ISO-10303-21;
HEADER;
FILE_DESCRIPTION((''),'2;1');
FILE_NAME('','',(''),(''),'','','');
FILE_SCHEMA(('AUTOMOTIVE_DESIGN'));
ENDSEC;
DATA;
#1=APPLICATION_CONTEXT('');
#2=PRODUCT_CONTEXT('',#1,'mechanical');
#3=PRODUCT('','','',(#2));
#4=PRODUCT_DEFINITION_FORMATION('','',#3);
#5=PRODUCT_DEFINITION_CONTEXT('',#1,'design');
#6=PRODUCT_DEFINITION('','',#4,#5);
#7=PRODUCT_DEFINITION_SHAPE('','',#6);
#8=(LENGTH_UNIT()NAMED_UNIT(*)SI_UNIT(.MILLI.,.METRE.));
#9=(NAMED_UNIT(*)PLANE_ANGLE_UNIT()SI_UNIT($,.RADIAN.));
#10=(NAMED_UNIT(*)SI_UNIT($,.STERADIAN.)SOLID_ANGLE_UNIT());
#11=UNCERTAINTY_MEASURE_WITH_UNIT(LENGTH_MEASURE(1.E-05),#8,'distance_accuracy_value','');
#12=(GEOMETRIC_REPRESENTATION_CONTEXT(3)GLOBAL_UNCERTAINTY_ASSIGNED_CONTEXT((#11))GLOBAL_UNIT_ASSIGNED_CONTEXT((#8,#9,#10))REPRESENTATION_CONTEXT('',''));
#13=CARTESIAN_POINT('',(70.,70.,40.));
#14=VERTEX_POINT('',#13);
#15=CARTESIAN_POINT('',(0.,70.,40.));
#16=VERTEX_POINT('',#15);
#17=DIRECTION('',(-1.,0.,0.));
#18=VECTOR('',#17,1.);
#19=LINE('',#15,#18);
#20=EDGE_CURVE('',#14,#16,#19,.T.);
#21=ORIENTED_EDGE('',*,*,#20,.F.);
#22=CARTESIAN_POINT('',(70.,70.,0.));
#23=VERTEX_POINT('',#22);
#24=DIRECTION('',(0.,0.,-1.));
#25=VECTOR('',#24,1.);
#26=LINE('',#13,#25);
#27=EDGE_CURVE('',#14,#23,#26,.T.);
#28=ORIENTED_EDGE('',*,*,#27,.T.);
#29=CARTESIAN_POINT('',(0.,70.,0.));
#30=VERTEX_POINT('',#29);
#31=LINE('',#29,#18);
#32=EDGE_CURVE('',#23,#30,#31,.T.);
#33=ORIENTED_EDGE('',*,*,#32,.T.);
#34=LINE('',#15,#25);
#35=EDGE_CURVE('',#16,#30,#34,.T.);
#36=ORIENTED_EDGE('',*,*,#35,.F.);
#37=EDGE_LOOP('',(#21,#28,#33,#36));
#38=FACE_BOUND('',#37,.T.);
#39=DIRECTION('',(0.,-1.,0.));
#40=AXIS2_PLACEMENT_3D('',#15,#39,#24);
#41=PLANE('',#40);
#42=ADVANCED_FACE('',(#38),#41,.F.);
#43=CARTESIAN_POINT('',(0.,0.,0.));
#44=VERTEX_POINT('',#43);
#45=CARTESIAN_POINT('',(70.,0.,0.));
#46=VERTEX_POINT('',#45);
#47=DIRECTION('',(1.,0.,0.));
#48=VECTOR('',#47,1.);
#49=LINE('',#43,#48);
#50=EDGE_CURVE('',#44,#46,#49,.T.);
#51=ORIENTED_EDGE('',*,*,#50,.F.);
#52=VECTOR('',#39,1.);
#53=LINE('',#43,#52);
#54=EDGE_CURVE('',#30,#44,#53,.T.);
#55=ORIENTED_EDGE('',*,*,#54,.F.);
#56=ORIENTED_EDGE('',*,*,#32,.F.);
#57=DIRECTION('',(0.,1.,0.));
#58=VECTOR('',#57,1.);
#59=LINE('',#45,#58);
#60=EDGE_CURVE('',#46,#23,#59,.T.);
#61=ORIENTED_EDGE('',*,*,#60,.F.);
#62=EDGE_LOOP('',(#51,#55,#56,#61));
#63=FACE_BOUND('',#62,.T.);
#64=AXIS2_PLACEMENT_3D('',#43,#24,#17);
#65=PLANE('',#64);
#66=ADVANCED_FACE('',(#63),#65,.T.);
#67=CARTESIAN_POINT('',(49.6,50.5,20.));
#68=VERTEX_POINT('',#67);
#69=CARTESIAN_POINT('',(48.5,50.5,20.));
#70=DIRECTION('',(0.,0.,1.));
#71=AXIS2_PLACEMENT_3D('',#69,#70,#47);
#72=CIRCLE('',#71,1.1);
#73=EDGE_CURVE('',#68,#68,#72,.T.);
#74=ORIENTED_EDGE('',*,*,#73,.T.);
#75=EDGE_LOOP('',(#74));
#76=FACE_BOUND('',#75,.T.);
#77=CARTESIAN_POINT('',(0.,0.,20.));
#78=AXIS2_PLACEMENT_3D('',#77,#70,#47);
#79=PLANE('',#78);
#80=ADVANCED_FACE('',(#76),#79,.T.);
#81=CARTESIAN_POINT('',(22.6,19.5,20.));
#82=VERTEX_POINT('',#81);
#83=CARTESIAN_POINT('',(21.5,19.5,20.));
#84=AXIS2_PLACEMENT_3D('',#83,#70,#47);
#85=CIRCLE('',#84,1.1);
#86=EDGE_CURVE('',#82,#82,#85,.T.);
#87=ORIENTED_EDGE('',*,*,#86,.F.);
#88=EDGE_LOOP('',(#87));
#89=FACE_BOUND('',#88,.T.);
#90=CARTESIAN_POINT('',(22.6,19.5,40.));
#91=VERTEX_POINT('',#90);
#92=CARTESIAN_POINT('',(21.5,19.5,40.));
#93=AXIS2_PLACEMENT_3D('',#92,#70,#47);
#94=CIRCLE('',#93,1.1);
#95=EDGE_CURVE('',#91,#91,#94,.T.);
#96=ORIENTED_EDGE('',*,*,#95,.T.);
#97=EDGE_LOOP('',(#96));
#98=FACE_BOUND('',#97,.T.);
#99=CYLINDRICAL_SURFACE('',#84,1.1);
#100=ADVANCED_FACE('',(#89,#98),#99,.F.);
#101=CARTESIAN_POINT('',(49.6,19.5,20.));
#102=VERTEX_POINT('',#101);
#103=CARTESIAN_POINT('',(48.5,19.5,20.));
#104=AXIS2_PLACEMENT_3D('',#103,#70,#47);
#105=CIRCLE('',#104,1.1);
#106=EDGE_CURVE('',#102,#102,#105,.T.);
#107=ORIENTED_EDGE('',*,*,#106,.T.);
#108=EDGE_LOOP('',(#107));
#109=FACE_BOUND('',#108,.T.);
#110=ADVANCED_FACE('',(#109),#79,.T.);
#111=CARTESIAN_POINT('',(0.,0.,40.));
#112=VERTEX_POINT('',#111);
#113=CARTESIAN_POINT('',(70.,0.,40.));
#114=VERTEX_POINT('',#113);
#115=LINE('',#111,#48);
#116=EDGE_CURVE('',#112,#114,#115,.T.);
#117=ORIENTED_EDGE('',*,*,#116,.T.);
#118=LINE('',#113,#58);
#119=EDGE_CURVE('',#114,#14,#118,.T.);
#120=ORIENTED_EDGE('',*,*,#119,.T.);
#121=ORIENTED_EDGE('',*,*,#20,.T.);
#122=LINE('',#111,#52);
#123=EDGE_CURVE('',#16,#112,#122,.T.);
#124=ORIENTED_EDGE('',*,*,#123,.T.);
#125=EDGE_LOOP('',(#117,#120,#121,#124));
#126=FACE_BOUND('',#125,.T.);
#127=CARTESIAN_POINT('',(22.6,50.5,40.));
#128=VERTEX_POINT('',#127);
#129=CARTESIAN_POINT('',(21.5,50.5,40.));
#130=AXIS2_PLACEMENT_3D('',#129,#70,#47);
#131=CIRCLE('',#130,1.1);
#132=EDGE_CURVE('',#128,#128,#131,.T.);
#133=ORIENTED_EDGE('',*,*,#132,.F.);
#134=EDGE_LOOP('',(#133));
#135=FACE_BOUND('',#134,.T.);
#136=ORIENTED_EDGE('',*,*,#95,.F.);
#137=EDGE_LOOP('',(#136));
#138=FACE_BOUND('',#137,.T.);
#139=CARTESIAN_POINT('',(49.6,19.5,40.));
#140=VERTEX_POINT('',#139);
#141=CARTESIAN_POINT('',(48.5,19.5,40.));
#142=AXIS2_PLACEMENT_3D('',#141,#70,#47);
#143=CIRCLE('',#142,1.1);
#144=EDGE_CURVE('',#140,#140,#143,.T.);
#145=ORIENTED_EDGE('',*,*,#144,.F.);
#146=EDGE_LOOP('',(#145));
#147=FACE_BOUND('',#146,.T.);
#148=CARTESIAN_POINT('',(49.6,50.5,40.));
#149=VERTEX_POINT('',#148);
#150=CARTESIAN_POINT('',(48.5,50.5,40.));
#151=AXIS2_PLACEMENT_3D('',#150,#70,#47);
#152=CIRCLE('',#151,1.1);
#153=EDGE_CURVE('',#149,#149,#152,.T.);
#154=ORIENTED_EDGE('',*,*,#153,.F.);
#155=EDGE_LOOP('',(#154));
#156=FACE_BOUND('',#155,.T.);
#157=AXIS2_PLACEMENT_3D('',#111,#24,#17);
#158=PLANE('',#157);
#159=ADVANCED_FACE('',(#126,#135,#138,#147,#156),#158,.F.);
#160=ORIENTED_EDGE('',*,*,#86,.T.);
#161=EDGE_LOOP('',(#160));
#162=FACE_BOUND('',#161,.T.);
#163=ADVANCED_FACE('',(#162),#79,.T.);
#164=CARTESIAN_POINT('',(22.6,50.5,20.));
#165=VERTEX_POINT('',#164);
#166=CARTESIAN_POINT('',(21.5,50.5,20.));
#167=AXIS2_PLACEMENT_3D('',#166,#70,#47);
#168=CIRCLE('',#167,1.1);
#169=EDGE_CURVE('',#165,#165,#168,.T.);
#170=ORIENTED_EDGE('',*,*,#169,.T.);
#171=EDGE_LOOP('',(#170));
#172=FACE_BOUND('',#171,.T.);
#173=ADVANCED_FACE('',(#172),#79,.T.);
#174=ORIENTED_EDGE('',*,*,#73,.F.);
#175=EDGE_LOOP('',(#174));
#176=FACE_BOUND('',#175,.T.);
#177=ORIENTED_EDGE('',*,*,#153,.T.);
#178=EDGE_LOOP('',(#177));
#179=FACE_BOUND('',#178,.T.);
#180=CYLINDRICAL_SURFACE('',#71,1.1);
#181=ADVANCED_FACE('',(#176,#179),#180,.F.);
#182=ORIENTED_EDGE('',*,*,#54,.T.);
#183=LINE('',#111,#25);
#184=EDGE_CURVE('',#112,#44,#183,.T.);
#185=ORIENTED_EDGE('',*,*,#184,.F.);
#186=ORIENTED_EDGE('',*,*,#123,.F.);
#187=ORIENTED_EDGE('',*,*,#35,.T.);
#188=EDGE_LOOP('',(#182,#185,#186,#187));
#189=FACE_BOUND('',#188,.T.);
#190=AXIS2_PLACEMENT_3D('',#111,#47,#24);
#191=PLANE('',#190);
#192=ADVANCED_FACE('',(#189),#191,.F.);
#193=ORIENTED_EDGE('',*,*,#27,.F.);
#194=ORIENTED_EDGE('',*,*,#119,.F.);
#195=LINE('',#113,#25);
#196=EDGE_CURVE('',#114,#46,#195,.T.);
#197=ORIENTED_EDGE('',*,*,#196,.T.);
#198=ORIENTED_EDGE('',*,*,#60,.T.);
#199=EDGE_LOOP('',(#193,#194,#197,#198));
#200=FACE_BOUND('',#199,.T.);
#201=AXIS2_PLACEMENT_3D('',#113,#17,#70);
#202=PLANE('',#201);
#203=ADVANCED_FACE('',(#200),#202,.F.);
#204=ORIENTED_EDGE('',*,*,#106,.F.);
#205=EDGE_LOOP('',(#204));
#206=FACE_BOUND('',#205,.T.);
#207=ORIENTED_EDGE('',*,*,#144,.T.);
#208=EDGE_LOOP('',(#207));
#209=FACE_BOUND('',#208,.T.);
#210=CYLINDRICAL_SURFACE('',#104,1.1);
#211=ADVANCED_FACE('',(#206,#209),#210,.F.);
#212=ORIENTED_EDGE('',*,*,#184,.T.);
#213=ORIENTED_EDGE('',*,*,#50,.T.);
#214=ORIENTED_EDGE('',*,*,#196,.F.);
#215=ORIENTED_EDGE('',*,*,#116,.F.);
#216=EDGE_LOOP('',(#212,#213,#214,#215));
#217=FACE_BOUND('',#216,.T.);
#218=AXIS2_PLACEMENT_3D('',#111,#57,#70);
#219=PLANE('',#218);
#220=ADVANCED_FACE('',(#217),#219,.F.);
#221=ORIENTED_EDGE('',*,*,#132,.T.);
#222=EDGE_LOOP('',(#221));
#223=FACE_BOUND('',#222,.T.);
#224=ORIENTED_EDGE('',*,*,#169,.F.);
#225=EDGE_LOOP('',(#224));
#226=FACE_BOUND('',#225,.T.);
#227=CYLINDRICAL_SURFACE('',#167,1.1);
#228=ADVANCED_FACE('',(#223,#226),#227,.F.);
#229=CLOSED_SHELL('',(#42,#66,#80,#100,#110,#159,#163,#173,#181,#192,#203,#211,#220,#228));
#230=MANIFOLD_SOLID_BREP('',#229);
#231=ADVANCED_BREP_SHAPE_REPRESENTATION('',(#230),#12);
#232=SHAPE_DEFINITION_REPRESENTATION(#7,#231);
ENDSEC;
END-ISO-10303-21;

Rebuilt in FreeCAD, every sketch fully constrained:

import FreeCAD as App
import Part
import Sketcher

V = App.Vector
Q = App.Units.Quantity


def add_polygon(sketch, points):
    """Adds a closed chain of lines whose ends are joined by coincident constraints."""
    first, n = sketch.GeometryCount, len(points)
    for a, b in zip(points, points[1:] + points[:1]):
        sketch.addGeometry(Part.LineSegment(App.Vector(*a, 0), App.Vector(*b, 0)), False)
    for i in range(n):
        sketch.addConstraint(Sketcher.Constraint("Coincident", first + i, 2, first + (i + 1) % n, 1))

doc = App.newDocument("Part")
params = doc.addObject("Spreadsheet::Sheet", "Params")
for row, (alias, value) in enumerate([
    ("sketch1_width", "70 mm"),
    ("pad1_length", "40 mm"),
    ("sketch2_diameter", "2.2 mm"),
    ("pocket1_length", "20 mm"),
], start=1):
    params.set(f"A{row}", alias)
    params.set(f"B{row}", "=" + value)
    params.setAlias(f"B{row}", alias)

body = doc.addObject("PartDesign::Body", "Body")

sketch1 = body.newObject("Sketcher::SketchObject", "Sketch")
sketch1.AttachmentSupport = (doc.getObject("XY_Plane"), [""])
sketch1.MapMode = "FlatFace"
add_polygon(sketch1, [(0, 70), (0, 0), (70, 0), (70, 70)])
sketch1.addConstraint([
    Sketcher.Constraint("Vertical", 0),
    Sketcher.Constraint("Horizontal", 1),
    Sketcher.Constraint("Vertical", 2),
    Sketcher.Constraint("Horizontal", 3),
    Sketcher.Constraint("Coincident", 0, 2, -1, 1),
    Sketcher.Constraint("Equal", 3, 0),
    Sketcher.Constraint("DistanceX", 1, 1, 1, 2, Q("70 mm")),
])
sketch1.setExpression("Constraints[10]", "Params.sketch1_width")
pad1 = body.newObject("PartDesign::Pad", "Pad")
pad1.Profile = sketch1
pad1.setExpression("Length", "Params.pad1_length")

sketch2 = body.newObject("Sketcher::SketchObject", "Sketch001")
sketch2.AttachmentSupport = (doc.getObject("XY_Plane"), [""])
sketch2.MapMode = "FlatFace"
sketch2.AttachmentOffset = App.Placement(V(0, 0, 40), App.Rotation())
sketch2.addGeometry([
    Part.Circle(V(21.5, 50.5, 0), V(0, 0, 1), 1.1),
    Part.Circle(V(48.5, 50.5, 0), V(0, 0, 1), 1.1),
    Part.Circle(V(48.5, 19.5, 0), V(0, 0, 1), 1.1),
    Part.Circle(V(21.5, 19.5, 0), V(0, 0, 1), 1.1),
], False)
sketch2.addConstraint([
    Sketcher.Constraint("Equal", 0, 1),
    Sketcher.Constraint("Equal", 1, 2),
    Sketcher.Constraint("Equal", 2, 3),
    Sketcher.Constraint("Horizontal", 0, 3, 1, 3),
    Sketcher.Constraint("Horizontal", 2, 3, 3, 3),
    Sketcher.Constraint("Vertical", 1, 3, 2, 3),
    Sketcher.Constraint("Vertical", 0, 3, 3, 3),
    Sketcher.Constraint("Diameter", 0, Q("2.2 mm")),
    Sketcher.Constraint("DistanceX", 0, 3, 1, 3, Q("27 mm")),
    Sketcher.Constraint("DistanceY", 2, 3, 1, 3, Q("31 mm")),
    Sketcher.Constraint("DistanceX", -1, 1, 0, 3, Q("21.5 mm")),
    Sketcher.Constraint("DistanceY", -1, 1, 0, 3, Q("50.5 mm")),
])
sketch2.setExpression("Constraints[7]", "Params.sketch2_diameter")
pocket1 = body.newObject("PartDesign::Pocket", "Pocket")
pocket1.Profile = sketch2
pocket1.setExpression("Length", "Params.pocket1_length")

doc.recompute()
